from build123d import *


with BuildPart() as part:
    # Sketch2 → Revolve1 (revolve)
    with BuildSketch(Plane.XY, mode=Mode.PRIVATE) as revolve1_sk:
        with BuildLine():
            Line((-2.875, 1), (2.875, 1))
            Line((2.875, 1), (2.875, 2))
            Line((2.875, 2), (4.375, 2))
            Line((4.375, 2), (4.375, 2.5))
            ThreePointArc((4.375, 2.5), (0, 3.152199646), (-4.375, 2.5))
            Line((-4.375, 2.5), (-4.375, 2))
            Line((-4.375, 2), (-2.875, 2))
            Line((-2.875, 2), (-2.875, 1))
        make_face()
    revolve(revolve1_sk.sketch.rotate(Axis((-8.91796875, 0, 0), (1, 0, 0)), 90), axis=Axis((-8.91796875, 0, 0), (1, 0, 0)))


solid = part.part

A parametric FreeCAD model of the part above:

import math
import FreeCAD as App
import Part
import Sketcher

doc = App.newDocument("Part")
body = doc.addObject("PartDesign::Body", "Body")

# Sketch on XY plane
sketch1 = doc.addObject("Sketcher::SketchObject", "Sketch")
body.addObject(sketch1)
sketch1.AttachmentSupport = (doc.XY_Plane, [""])
sketch1.MapMode = "FlatFace"
sketch1.addGeometry(Part.LineSegment(App.Vector(-2.875, 1, 0), App.Vector(2.875, 1, 0)), False)
sketch1.addGeometry(Part.LineSegment(App.Vector(2.875, 1, 0), App.Vector(2.875, 2, 0)), False)
sketch1.addGeometry(Part.LineSegment(App.Vector(2.875, 2, 0), App.Vector(4.375, 2, 0)), False)
sketch1.addGeometry(Part.LineSegment(App.Vector(4.375, 2, 0), App.Vector(4.375, 2.5, 0)), False)
sketch1.addGeometry(Part.ArcOfCircle(Part.Circle(App.Vector(0, -11.8478, 0), App.Vector(0, 0, 1), 15), math.radians(73.042237), math.radians(106.957763)), False)
sketch1.addGeometry(Part.LineSegment(App.Vector(-4.375, 2.5, 0), App.Vector(-4.375, 2, 0)), False)
sketch1.addGeometry(Part.LineSegment(App.Vector(-4.375, 2, 0), App.Vector(-2.875, 2, 0)), False)
sketch1.addGeometry(Part.LineSegment(App.Vector(-2.875, 2, 0), App.Vector(-2.875, 1, 0)), False)
sketch1.addConstraint(Sketcher.Constraint("Coincident", 0, 2, 1, 1))
sketch1.addConstraint(Sketcher.Constraint("Coincident", 1, 2, 2, 1))
sketch1.addConstraint(Sketcher.Constraint("Coincident", 2, 2, 3, 1))
sketch1.addConstraint(Sketcher.Constraint("Coincident", 3, 2, 4, 1))
sketch1.addConstraint(Sketcher.Constraint("Coincident", 4, 2, 5, 1))
sketch1.addConstraint(Sketcher.Constraint("Coincident", 5, 2, 6, 1))
sketch1.addConstraint(Sketcher.Constraint("Coincident", 6, 2, 7, 1))
sketch1.addConstraint(Sketcher.Constraint("Coincident", 7, 2, 0, 1))
sketch1.addConstraint(Sketcher.Constraint("Horizontal", 0))
sketch1.addConstraint(Sketcher.Constraint("Vertical", 1))
sketch1.addConstraint(Sketcher.Constraint("Horizontal", 2))
sketch1.addConstraint(Sketcher.Constraint("Vertical", 3))
sketch1.addConstraint(Sketcher.Constraint("Vertical", 5))
sketch1.addConstraint(Sketcher.Constraint("Horizontal", 6))
sketch1.addConstraint(Sketcher.Constraint("Vertical", 7))
sketch1.addConstraint(Sketcher.Constraint("Symmetric", 3, 2, 4, 2, -2))
sketch1.addConstraint(Sketcher.Constraint("Symmetric", 1, 2, 6, 2, -2))
sketch1.addConstraint(Sketcher.Constraint("Radius", 4, 15.0))
sketch1.addConstraint(Sketcher.Constraint("DistanceY", 1, 1, 1, 2, 1.0))
sketch1.addConstraint(Sketcher.Constraint("DistanceX", 2, 1, 2, 2, 1.5))
sketch1.addConstraint(Sketcher.Constraint("DistanceY", 3, 1, 3, 2, 0.5))
sketch1.addConstraint(Sketcher.Constraint("DistanceY", -1, 1, 0, 2, 1.0))
sketch1.addConstraint(Sketcher.Constraint("DistanceX", 0, 1, 0, 2, 5.75))
revolution = doc.addObject("PartDesign::Revolution", "Revolution")
body.addObject(revolution)
revolution.Profile = sketch1
revolution.ReferenceAxis = (sketch1, ["H_Axis"])
revolution.Angle = 360

doc.recompute()
